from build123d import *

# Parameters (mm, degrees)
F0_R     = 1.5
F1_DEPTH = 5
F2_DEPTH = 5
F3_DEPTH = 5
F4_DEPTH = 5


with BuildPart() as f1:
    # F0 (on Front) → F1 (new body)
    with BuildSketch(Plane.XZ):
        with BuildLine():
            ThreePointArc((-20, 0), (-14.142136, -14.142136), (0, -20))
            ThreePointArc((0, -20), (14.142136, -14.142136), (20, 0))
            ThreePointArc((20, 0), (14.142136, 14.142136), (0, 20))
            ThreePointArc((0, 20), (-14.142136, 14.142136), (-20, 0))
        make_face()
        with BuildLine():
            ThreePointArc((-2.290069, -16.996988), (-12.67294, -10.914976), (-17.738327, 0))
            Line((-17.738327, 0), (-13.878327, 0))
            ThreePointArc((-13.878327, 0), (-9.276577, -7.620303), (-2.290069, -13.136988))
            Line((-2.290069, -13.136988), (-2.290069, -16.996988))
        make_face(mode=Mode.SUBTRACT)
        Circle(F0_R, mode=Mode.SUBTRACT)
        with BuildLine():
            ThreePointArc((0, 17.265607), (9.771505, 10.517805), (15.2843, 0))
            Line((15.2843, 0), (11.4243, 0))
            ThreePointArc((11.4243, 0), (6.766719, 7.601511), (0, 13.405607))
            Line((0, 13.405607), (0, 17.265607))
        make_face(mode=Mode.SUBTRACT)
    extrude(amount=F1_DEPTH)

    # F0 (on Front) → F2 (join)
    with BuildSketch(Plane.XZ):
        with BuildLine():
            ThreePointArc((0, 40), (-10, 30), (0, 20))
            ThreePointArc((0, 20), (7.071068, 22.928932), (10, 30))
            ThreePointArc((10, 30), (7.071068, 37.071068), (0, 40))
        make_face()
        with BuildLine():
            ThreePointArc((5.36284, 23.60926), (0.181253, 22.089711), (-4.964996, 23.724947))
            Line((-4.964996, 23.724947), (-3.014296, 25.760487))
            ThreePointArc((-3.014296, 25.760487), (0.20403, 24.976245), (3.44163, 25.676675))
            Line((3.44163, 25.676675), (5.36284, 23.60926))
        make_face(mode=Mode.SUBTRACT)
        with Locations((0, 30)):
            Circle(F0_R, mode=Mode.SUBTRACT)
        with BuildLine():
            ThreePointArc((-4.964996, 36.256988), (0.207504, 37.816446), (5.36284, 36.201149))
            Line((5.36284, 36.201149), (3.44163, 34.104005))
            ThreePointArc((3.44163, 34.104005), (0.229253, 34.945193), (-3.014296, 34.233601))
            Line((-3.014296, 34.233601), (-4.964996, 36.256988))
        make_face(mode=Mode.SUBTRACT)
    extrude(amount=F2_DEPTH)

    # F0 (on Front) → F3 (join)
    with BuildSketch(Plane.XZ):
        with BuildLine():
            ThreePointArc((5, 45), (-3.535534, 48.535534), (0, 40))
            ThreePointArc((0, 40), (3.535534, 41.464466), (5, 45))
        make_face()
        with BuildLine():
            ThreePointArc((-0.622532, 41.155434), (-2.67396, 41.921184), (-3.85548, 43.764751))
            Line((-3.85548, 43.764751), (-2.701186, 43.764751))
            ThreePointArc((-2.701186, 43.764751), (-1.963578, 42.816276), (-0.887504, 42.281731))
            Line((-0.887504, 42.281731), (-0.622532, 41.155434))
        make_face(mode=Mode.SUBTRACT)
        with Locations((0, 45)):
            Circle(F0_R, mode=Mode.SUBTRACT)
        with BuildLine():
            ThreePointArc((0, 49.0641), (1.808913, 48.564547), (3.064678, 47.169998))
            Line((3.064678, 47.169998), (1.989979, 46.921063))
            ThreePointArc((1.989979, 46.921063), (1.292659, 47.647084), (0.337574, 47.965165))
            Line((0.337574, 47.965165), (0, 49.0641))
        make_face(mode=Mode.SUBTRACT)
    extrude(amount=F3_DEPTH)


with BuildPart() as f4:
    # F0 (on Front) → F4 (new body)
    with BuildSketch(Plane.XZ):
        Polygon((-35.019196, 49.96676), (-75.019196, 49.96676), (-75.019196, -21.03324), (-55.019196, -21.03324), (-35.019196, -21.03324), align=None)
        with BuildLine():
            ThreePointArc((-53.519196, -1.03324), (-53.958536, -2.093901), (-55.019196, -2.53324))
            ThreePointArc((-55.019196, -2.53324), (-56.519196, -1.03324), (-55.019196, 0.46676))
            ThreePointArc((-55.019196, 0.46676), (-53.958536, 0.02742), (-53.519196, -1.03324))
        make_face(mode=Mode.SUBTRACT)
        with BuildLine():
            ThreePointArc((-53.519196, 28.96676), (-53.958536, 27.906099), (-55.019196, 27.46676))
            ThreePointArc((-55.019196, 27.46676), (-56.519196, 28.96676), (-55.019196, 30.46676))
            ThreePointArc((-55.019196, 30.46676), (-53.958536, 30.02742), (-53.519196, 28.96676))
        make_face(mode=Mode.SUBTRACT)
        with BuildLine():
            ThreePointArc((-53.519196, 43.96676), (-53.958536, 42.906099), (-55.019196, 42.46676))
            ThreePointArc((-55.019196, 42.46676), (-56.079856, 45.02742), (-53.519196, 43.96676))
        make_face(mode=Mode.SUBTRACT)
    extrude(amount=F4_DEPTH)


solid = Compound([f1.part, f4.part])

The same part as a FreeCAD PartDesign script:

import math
import FreeCAD as App
import Part
import Sketcher
from FreeCAD import Vector
Q = App.Units.Quantity


def add_polygon(sketch, points):
    """Adds a closed chain of lines whose ends are joined by coincident constraints."""
    first, n = sketch.GeometryCount, len(points)
    for a, b in zip(points, points[1:] + points[:1]):
        sketch.addGeometry(Part.LineSegment(App.Vector(*a, 0), App.Vector(*b, 0)), False)
    for i in range(n):
        sketch.addConstraint(Sketcher.Constraint("Coincident", first + i, 2, first + (i + 1) % n, 1))

doc = App.newDocument("Part")
params = doc.addObject("Spreadsheet::Sheet", "Params")
for row, (alias, value) in enumerate([
    ("sketch1_diameter", "3 mm"),
    ("sketch1_radius", "19.999999 mm"),
    ("sketch1_radius2", "28.680001 mm"),
    ("sketch1_width", "3.86 mm"),
    ("pad1_length", "5 mm"),
    ("sketch2_diameter", "3 mm"),
    ("sketch2_radius", "10 mm"),
    ("pad2_length", "5 mm"),
    ("sketch3_diameter", "3 mm"),
    ("sketch3_radius", "5 mm"),
    ("sketch3_radius2", "2.699998 mm"),
    ("sketch3_radius3", "2.1 mm"),
    ("pad3_length", "5 mm"),
    ("sketch4_radius", "1.500001 mm"),
    ("sketch4_width", "40 mm"),
    ("sketch4_height", "71 mm"),
    ("pad4_length", "5 mm"),
], start=1):
    params.set(f"A{row}", alias)
    params.set(f"B{row}", "=" + value)
    params.setAlias(f"B{row}", alias)

body = doc.addObject("PartDesign::Body", "Body")
body.AllowCompound = True

sketch1 = body.newObject("Sketcher::SketchObject", "Sketch")
sketch1.AttachmentSupport = (doc.getObject("XZ_Plane"), [""])
sketch1.MapMode = "FlatFace"
sketch1.addGeometry([
    Part.ArcOfCircle(Part.Circle(Vector(0, 0, 0), Vector(0, 0, 1), 20), math.radians(180), math.radians(270)),
    Part.ArcOfCircle(Part.Circle(Vector(0, 0, 0), Vector(0, 0, 1), 20), math.radians(-90), math.radians(0)),
    Part.ArcOfCircle(Part.Circle(Vector(0, 0, 0), Vector(0, 0, 1), 20), math.radians(0), math.radians(90)),
    Part.ArcOfCircle(Part.Circle(Vector(0, 0, 0), Vector(0, 0, 1), 20), math.radians(90), math.radians(180)),
    Part.LineSegment(Vector(-2.3, -13.1, 0), Vector(-2.3, -17, 0)),
    Part.ArcOfCircle(Part.Circle(Vector(2.2, 2.6, 0), Vector(0, 0, 1), 20.2), math.radians(-172), math.radians(-103)),
    Part.LineSegment(Vector(-17.7, 0, 0), Vector(-13.9, 0, 0)),
    Part.ArcOfCircle(Part.Circle(Vector(9.4, 8.9, 0), Vector(0, 0, 1), 24.9), math.radians(-159), math.radians(-118)),
    Part.Circle(Vector(0, 0, 0), Vector(0, 0, 1), 1.5),
    Part.LineSegment(Vector(0, 13.4, 0), Vector(0, 17.3, 0)),
    Part.ArcOfCircle(Part.Circle(Vector(-8.8, -5.9, 0), Vector(0, 0, 1), 24.8), math.radians(14), math.radians(69)),
    Part.LineSegment(Vector(15.3, 0, 0), Vector(11.4, 0, 0)),
    Part.ArcOfCircle(Part.Circle(Vector(-15.1, -11, 0), Vector(0, 0, 1), 28.7), math.radians(23), math.radians(58)),
], False)
sketch1.addConstraint([
    Sketcher.Constraint("Tangent", 0, 2, 1, 1),
    Sketcher.Constraint("Tangent", 1, 2, 2, 1),
    Sketcher.Constraint("Tangent", 2, 2, 3, 1),
    Sketcher.Constraint("Tangent", 3, 2, 0, 1),
    Sketcher.Constraint("Coincident", 4, 2, 5, 2),
    Sketcher.Constraint("Coincident", 5, 1, 6, 1),
    Sketcher.Constraint("Coincident", 6, 2, 7, 1),
    Sketcher.Constraint("Coincident", 7, 2, 4, 1),
    Sketcher.Constraint("Coincident", 9, 2, 10, 2),
    Sketcher.Constraint("Coincident", 10, 1, 11, 1),
    Sketcher.Constraint("Coincident", 11, 2, 12, 1),
    Sketcher.Constraint("Coincident", 12, 2, 9, 1),
    Sketcher.Constraint("Vertical", 4),
    Sketcher.Constraint("Horizontal", 6),
    Sketcher.Constraint("Vertical", 9),
    Sketcher.Constraint("Horizontal", 11),
    Sketcher.Constraint("Coincident", 0, 3, -1, 1),
    Sketcher.Constraint("Coincident", 8, 3, -1, 1),
    Sketcher.Constraint("Equal", 0, 1),
    Sketcher.Constraint("PointOnObject", 0, 2, -2),
    Sketcher.Constraint("PointOnObject", 1, 2, -1),
    Sketcher.Constraint("PointOnObject", 2, 2, -2),
    Sketcher.Constraint("PointOnObject", 3, 2, -1),
    Sketcher.Constraint("PointOnObject", 5, 1, -1),
    Sketcher.Constraint("PointOnObject", 9, 2, -2),
    Sketcher.Constraint("PointOnObject", 10, 1, -1),
    Sketcher.Constraint("Equal", 6, 11),
    Sketcher.Constraint("Equal", 11, 4),
    Sketcher.Constraint("Equal", 4, 9),
    Sketcher.Constraint("Diameter", 8, Q("3 mm")),
    Sketcher.Constraint("Radius", 0, Q("19.999999 mm")),
    Sketcher.Constraint("Radius", 12, Q("28.680001 mm")),
    Sketcher.Constraint("DistanceX", 6, 1, 6, 2, Q("3.86 mm")),
    Sketcher.Constraint("Radius", 10, Q("24.793151 mm")),
    Sketcher.Constraint("Radius", 5, Q("20.150635 mm")),
    Sketcher.Constraint("Radius", 7, Q("24.919996 mm")),
    Sketcher.Constraint("DistanceX", -1, 1, 10, 1, Q("15.2843 mm")),
    Sketcher.Constraint("DistanceY", 2, 3, 5, 3, Q("2.638101 mm")),
    Sketcher.Constraint("DistanceY", 12, 3, 10, 3, Q("5.084901 mm")),
    Sketcher.Constraint("DistanceX", -1, 1, 7, 3, Q("9.411639 mm")),
    Sketcher.Constraint("DistanceX", 4, 2, -1, 1, Q("2.290069 mm")),
])
sketch1.setExpression("Constraints[29]", "Params.sketch1_diameter")
sketch1.setExpression("Constraints[30]", "Params.sketch1_radius")
sketch1.setExpression("Constraints[31]", "Params.sketch1_radius2")
sketch1.setExpression("Constraints[32]", "Params.sketch1_width")
pad1 = body.newObject("PartDesign::Pad", "Pad")
pad1.Profile = sketch1
pad1.setExpression("Length", "Params.pad1_length")

sketch2 = body.newObject("Sketcher::SketchObject", "Sketch001")
sketch2.AttachmentSupport = (doc.getObject("XZ_Plane"), [""])
sketch2.MapMode = "FlatFace"
sketch2.addGeometry([
    Part.ArcOfCircle(Part.Circle(Vector(0, 30, 0), Vector(0, 0, 1), 10), math.radians(90), math.radians(270)),
    Part.ArcOfCircle(Part.Circle(Vector(0, 30, 0), Vector(0, 0, 1), 10), math.radians(-90), math.radians(0)),
    Part.ArcOfCircle(Part.Circle(Vector(0, 30, 0), Vector(0, 0, 1), 10), math.radians(0), math.radians(90)),
    Part.LineSegment(Vector(3.4, 25.7, 0), Vector(5.4, 23.6, 0)),
    Part.ArcOfCircle(Part.Circle(Vector(0.3, 31.3, 0), Vector(0, 0, 1), 9.2), math.radians(-125), math.radians(-57)),
    Part.LineSegment(Vector(-5, 23.7, 0), Vector(-3, 25.8, 0)),
    Part.ArcOfCircle(Part.Circle(Vector(0.3, 32.4, 0), Vector(0, 0, 1), 7.4), math.radians(-117), math.radians(-65)),
    Part.Circle(Vector(0, 30, 0), Vector(0, 0, 1), 1.5),
    Part.LineSegment(Vector(-3, 34.2, 0), Vector(-5, 36.3, 0)),
    Part.ArcOfCircle(Part.Circle(Vector(0.2, 28.6, 0), Vector(0, 0, 1), 9.2), math.radians(56), math.radians(124)),
    Part.LineSegment(Vector(5.4, 36.2, 0), Vector(3.4, 34.1, 0)),
    Part.ArcOfCircle(Part.Circle(Vector(0.1, 27.8, 0), Vector(0, 0, 1), 7.1), math.radians(62), math.radians(116)),
], False)
sketch2.addConstraint([
    Sketcher.Constraint("Tangent", 0, 2, 1, 1),
    Sketcher.Constraint("Tangent", 1, 2, 2, 1),
    Sketcher.Constraint("Tangent", 2, 2, 0, 1),
    Sketcher.Constraint("Coincident", 3, 2, 4, 2),
    Sketcher.Constraint("Coincident", 4, 1, 5, 1),
    Sketcher.Constraint("Coincident", 5, 2, 6, 1),
    Sketcher.Constraint("Coincident", 6, 2, 3, 1),
    Sketcher.Constraint("Coincident", 8, 2, 9, 2),
    Sketcher.Constraint("Coincident", 9, 1, 10, 1),
    Sketcher.Constraint("Coincident", 10, 2, 11, 1),
    Sketcher.Constraint("Coincident", 11, 2, 8, 1),
    Sketcher.Constraint("Coincident", 7, 3, 0, 3),
    Sketcher.Constraint("PointOnObject", 0, 3, -2),
    Sketcher.Constraint("PointOnObject", 0, 2, -2),
    Sketcher.Constraint("PointOnObject", 2, 2, -2),
    Sketcher.Constraint("Horizontal", 7, 3, 1, 2),
    Sketcher.Constraint("Vertical", 4, 1, 8, 2),
    Sketcher.Constraint("Vertical", 3, 2, 9, 1),
    Sketcher.Constraint("Vertical", 6, 2, 10, 2),
    Sketcher.Constraint("Vertical", 5, 2, 11, 2),
    Sketcher.Constraint("Diameter", 7, Q("3 mm")),
    Sketcher.Constraint("Radius", 0, Q("10 mm")),
    Sketcher.Constraint("DistanceY", -1, 1, 0, 3, Q("30 mm")),
    Sketcher.Constraint("Radius", 4, Q("9.241849 mm")),
    Sketcher.Constraint("Radius", 6, Q("7.390004 mm")),
    Sketcher.Constraint("Radius", 9, Q("9.193227 mm")),
    Sketcher.Constraint("Radius", 11, Q("7.100006 mm")),
    Sketcher.Constraint("DistanceX", -1, 1, 9, 3, Q("0.157801 mm")),
    Sketcher.Constraint("DistanceY", -1, 1, 11, 2, Q("34.233601 mm")),
    Sketcher.Constraint("DistanceX", 4, 1, 5, 2, Q("1.9507 mm")),
    Sketcher.Constraint("DistanceX", -1, 1, 4, 3, Q("0.284769 mm")),
    Sketcher.Constraint("DistanceY", -1, 1, 4, 3, Q("31.33098 mm")),
    Sketcher.Constraint("DistanceX", -1, 1, 6, 3, Q("0.29996 mm")),
    Sketcher.Constraint("DistanceX", -1, 1, 3, 2, Q("5.36284 mm")),
    Sketcher.Constraint("DistanceX", -1, 1, 6, 2, Q("3.44163 mm")),
    Sketcher.Constraint("DistanceY", -1, 1, 9, 1, Q("36.201149 mm")),
    Sketcher.Constraint("DistanceX", 4, 1, 11, 3, Q("5.051752 mm")),
    Sketcher.Constraint("DistanceY", 4, 1, 11, 3, Q("4.12167 mm")),
    Sketcher.Constraint("DistanceY", 4, 1, 5, 2, Q("2.03554 mm")),
])
sketch2.setExpression("Constraints[20]", "Params.sketch2_diameter")
sketch2.setExpression("Constraints[21]", "Params.sketch2_radius")
pad2 = body.newObject("PartDesign::Pad", "Pad001")
pad2.Profile = sketch2
pad2.setExpression("Length", "Params.pad2_length")

sketch3 = body.newObject("Sketcher::SketchObject", "Sketch002")
sketch3.AttachmentSupport = (doc.getObject("XZ_Plane"), [""])
sketch3.MapMode = "FlatFace"
sketch3.addGeometry([
    Part.ArcOfCircle(Part.Circle(Vector(0, 45, 0), Vector(0, 0, 1), 5), math.radians(0), math.radians(270)),
    Part.ArcOfCircle(Part.Circle(Vector(0, 45, 0), Vector(0, 0, 1), 5), math.radians(-90), math.radians(0)),
    Part.LineSegment(Vector(-0.9, 42.3, 0), Vector(-0.6, 41.2, 0)),
    Part.ArcOfCircle(Part.Circle(Vector(-0.5, 44.6, 0), Vector(0, 0, 1), 3.5), math.radians(-166), math.radians(-92)),
    Part.LineSegment(Vector(-3.9, 43.8, 0), Vector(-2.7, 43.8, 0)),
    Part.ArcOfCircle(Part.Circle(Vector(-0.3, 44.9, 0), Vector(0, 0, 1), 2.7), math.radians(-155), math.radians(-104)),
    Part.Circle(Vector(0, 45, 0), Vector(0, 0, 1), 1.5),
    Part.LineSegment(Vector(0.3, 48, 0), Vector(0, 49.1, 0)),
    Part.ArcOfCircle(Part.Circle(Vector(0, 45.7, 0), Vector(0, 0, 1), 3.3), math.radians(26), math.radians(91)),
    Part.LineSegment(Vector(3.1, 47.2, 0), Vector(2, 46.9, 0)),
    Part.ArcOfCircle(Part.Circle(Vector(0.2, 45.9, 0), Vector(0, 0, 1), 2.1), math.radians(30), math.radians(85)),
], False)
sketch3.addConstraint([
    Sketcher.Constraint("Tangent", 0, 1, 1, 2),
    Sketcher.Constraint("Coincident", 1, 1, 0, 2),
    Sketcher.Constraint("Coincident", 2, 2, 3, 2),
    Sketcher.Constraint("Coincident", 3, 1, 4, 1),
    Sketcher.Constraint("Coincident", 4, 2, 5, 1),
    Sketcher.Constraint("Coincident", 5, 2, 2, 1),
    Sketcher.Constraint("Coincident", 7, 2, 8, 2),
    Sketcher.Constraint("Coincident", 8, 1, 9, 1),
    Sketcher.Constraint("Coincident", 9, 2, 10, 1),
    Sketcher.Constraint("Coincident", 10, 2, 7, 1),
    Sketcher.Constraint("Horizontal", 4),
    Sketcher.Constraint("Coincident", 6, 3, 0, 3),
    Sketcher.Constraint("PointOnObject", 0, 3, -2),
    Sketcher.Constraint("PointOnObject", 1, 1, -2),
    Sketcher.Constraint("PointOnObject", 7, 2, -2),
    Sketcher.Constraint("Horizontal", 6, 3, 0, 1),
    Sketcher.Constraint("Diameter", 6, Q("3 mm")),
    Sketcher.Constraint("Radius", 0, Q("5 mm")),
    Sketcher.Constraint("Radius", 5, Q("2.699998 mm")),
    Sketcher.Constraint("Radius", 10, Q("2.1 mm")),
    Sketcher.Constraint("DistanceY", -1, 1, 0, 3, Q("45 mm")),
    Sketcher.Constraint("DistanceY", -1, 1, 8, 1, Q("47.169998 mm")),
    Sketcher.Constraint("Radius", 3, Q("3.461714 mm")),
    Sketcher.Constraint("Radius", 8, Q("3.347206 mm")),
    Sketcher.Constraint("DistanceX", 3, 3, -1, 1, Q("0.4998 mm")),
    Sketcher.Constraint("DistanceY", -1, 1, 7, 2, Q("49.0641 mm")),
    Sketcher.Constraint("DistanceX", 9, 2, 8, 1, Q("1.074699 mm")),
    Sketcher.Constraint("DistanceX", 4, 1, 4, 2, Q("1.154294 mm")),
    Sketcher.Constraint("DistanceY", -1, 1, 3, 3, Q("44.614972 mm")),
    Sketcher.Constraint("DistanceX", 5, 3, -1, 1, Q("0.254459 mm")),
    Sketcher.Constraint("DistanceY", -1, 1, 5, 3, Q("44.906468 mm")),
    Sketcher.Constraint("DistanceY", -1, 1, 10, 3, Q("45.871789 mm")),
    Sketcher.Constraint("DistanceX", 2, 2, -1, 1, Q("0.622532 mm")),
    Sketcher.Constraint("DistanceY", -1, 1, 5, 2, Q("42.281731 mm")),
    Sketcher.Constraint("DistanceX", -1, 1, 8, 1, Q("3.064678 mm")),
    Sketcher.Constraint("DistanceX", 10, 3, 8, 1, Q("2.893771 mm")),
    Sketcher.Constraint("DistanceX", 8, 3, 10, 2, Q("0.28841 mm")),
])
sketch3.setExpression("Constraints[16]", "Params.sketch3_diameter")
sketch3.setExpression("Constraints[17]", "Params.sketch3_radius")
sketch3.setExpression("Constraints[18]", "Params.sketch3_radius2")
sketch3.setExpression("Constraints[19]", "Params.sketch3_radius3")
pad3 = body.newObject("PartDesign::Pad", "Pad002")
pad3.Profile = sketch3
pad3.setExpression("Length", "Params.pad3_length")
body2 = doc.addObject("PartDesign::Body", "Body001")

sketch4 = body2.newObject("Sketcher::SketchObject", "Sketch003")
sketch4.AttachmentSupport = (doc.getObject("XZ_Plane001"), [""])
sketch4.MapMode = "FlatFace"
add_polygon(sketch4, [(-35, 50), (-75, 50), (-75, -21), (-35, -21)])
sketch4.addGeometry(Part.ArcOfCircle(Part.Circle(Vector(-55, -1, 0), Vector(0, 0, 1), 1.5), math.radians(0), math.radians(90)), False)
sketch4.addGeometry(Part.ArcOfCircle(Part.Circle(Vector(-55, -1, 0), Vector(0, 0, 1), 1.5), math.radians(-90), math.radians(0)), False)
sketch4.addGeometry(Part.ArcOfCircle(Part.Circle(Vector(-55, -1, 0), Vector(0, 0, 1), 1.5), math.radians(90), math.radians(270)), False)
sketch4.addGeometry(Part.ArcOfCircle(Part.Circle(Vector(-55, 29, 0), Vector(0, 0, 1), 1.5), math.radians(0), math.radians(90)), False)
sketch4.addGeometry(Part.ArcOfCircle(Part.Circle(Vector(-55, 29, 0), Vector(0, 0, 1), 1.5), math.radians(-90), math.radians(0)), False)
sketch4.addGeometry(Part.ArcOfCircle(Part.Circle(Vector(-55, 29, 0), Vector(0, 0, 1), 1.5), math.radians(90), math.radians(270)), False)
sketch4.addGeometry(Part.ArcOfCircle(Part.Circle(Vector(-55, 44, 0), Vector(0, 0, 1), 1.5), math.radians(0), math.radians(270)), False)
sketch4.addGeometry(Part.ArcOfCircle(Part.Circle(Vector(-55, 44, 0), Vector(0, 0, 1), 1.5), math.radians(-90), math.radians(0)), False)
sketch4.addConstraint([
    Sketcher.Constraint("Tangent", 4, 1, 5, 2),
    Sketcher.Constraint("Tangent", 5, 1, 6, 2),
    Sketcher.Constraint("Tangent", 6, 1, 4, 2),
    Sketcher.Constraint("Tangent", 7, 1, 8, 2),
    Sketcher.Constraint("Tangent", 8, 1, 9, 2),
    Sketcher.Constraint("Tangent", 9, 1, 7, 2),
    Sketcher.Constraint("Tangent", 10, 1, 11, 2),
    Sketcher.Constraint("Coincident", 11, 1, 10, 2),
    Sketcher.Constraint("Horizontal", 0),
    Sketcher.Constraint("Vertical", 1),
    Sketcher.Constraint("Horizontal", 2),
    Sketcher.Constraint("Vertical", 3),
    Sketcher.Constraint("Equal", 6, 7),
    Sketcher.Constraint("Equal", 9, 10),
    Sketcher.Constraint("Horizontal", 6, 3, 4, 1),
    Sketcher.Constraint("Horizontal", 9, 3, 7, 1),
    Sketcher.Constraint("Horizontal", 11, 3, 10, 1),
    Sketcher.Constraint("Vertical", 6, 3, 7, 3),
    Sketcher.Constraint("Vertical", 9, 3, 10, 3),
    Sketcher.Constraint("Vertical", 11, 3, 5, 1),
    Sketcher.Constraint("Vertical", 5, 1, 6, 1),
    Sketcher.Constraint("Vertical", 6, 1, 8, 1),
    Sketcher.Constraint("Vertical", 8, 1, 9, 1),
    Sketcher.Constraint("Vertical", 9, 1, 11, 1),
    Sketcher.Constraint("Radius", 4, Q("1.500001 mm")),
    Sketcher.Constraint("DistanceX", 0, 2, 0, 1, Q("40 mm")),
    Sketcher.Constraint("DistanceY", 1, 2, 1, 1, Q("71 mm")),
    Sketcher.Constraint("DistanceY", 6, 3, 7, 3, Q("29.999999 mm")),
    Sketcher.Constraint("DistanceY", 9, 3, 10, 3, Q("15 mm")),
    Sketcher.Constraint("DistanceX", 0, 2, 10, 3, Q("20 mm")),
    Sketcher.Constraint("DistanceY", 10, 3, 0, 2, Q("6 mm")),
    Sketcher.Constraint("DistanceY", 4, 3, -1, 1, Q("1.033241 mm")),
    Sketcher.Constraint("DistanceX", 4, 3, -1, 1, Q("55.019197 mm")),
])
sketch4.setExpression("Constraints[28]", "Params.sketch4_radius")
sketch4.setExpression("Constraints[29]", "Params.sketch4_width")
sketch4.setExpression("Constraints[30]", "Params.sketch4_height")
pad4 = body2.newObject("PartDesign::Pad", "Pad003")
pad4.Profile = sketch4
pad4.setExpression("Length", "Params.pad4_length")

doc.recompute()
